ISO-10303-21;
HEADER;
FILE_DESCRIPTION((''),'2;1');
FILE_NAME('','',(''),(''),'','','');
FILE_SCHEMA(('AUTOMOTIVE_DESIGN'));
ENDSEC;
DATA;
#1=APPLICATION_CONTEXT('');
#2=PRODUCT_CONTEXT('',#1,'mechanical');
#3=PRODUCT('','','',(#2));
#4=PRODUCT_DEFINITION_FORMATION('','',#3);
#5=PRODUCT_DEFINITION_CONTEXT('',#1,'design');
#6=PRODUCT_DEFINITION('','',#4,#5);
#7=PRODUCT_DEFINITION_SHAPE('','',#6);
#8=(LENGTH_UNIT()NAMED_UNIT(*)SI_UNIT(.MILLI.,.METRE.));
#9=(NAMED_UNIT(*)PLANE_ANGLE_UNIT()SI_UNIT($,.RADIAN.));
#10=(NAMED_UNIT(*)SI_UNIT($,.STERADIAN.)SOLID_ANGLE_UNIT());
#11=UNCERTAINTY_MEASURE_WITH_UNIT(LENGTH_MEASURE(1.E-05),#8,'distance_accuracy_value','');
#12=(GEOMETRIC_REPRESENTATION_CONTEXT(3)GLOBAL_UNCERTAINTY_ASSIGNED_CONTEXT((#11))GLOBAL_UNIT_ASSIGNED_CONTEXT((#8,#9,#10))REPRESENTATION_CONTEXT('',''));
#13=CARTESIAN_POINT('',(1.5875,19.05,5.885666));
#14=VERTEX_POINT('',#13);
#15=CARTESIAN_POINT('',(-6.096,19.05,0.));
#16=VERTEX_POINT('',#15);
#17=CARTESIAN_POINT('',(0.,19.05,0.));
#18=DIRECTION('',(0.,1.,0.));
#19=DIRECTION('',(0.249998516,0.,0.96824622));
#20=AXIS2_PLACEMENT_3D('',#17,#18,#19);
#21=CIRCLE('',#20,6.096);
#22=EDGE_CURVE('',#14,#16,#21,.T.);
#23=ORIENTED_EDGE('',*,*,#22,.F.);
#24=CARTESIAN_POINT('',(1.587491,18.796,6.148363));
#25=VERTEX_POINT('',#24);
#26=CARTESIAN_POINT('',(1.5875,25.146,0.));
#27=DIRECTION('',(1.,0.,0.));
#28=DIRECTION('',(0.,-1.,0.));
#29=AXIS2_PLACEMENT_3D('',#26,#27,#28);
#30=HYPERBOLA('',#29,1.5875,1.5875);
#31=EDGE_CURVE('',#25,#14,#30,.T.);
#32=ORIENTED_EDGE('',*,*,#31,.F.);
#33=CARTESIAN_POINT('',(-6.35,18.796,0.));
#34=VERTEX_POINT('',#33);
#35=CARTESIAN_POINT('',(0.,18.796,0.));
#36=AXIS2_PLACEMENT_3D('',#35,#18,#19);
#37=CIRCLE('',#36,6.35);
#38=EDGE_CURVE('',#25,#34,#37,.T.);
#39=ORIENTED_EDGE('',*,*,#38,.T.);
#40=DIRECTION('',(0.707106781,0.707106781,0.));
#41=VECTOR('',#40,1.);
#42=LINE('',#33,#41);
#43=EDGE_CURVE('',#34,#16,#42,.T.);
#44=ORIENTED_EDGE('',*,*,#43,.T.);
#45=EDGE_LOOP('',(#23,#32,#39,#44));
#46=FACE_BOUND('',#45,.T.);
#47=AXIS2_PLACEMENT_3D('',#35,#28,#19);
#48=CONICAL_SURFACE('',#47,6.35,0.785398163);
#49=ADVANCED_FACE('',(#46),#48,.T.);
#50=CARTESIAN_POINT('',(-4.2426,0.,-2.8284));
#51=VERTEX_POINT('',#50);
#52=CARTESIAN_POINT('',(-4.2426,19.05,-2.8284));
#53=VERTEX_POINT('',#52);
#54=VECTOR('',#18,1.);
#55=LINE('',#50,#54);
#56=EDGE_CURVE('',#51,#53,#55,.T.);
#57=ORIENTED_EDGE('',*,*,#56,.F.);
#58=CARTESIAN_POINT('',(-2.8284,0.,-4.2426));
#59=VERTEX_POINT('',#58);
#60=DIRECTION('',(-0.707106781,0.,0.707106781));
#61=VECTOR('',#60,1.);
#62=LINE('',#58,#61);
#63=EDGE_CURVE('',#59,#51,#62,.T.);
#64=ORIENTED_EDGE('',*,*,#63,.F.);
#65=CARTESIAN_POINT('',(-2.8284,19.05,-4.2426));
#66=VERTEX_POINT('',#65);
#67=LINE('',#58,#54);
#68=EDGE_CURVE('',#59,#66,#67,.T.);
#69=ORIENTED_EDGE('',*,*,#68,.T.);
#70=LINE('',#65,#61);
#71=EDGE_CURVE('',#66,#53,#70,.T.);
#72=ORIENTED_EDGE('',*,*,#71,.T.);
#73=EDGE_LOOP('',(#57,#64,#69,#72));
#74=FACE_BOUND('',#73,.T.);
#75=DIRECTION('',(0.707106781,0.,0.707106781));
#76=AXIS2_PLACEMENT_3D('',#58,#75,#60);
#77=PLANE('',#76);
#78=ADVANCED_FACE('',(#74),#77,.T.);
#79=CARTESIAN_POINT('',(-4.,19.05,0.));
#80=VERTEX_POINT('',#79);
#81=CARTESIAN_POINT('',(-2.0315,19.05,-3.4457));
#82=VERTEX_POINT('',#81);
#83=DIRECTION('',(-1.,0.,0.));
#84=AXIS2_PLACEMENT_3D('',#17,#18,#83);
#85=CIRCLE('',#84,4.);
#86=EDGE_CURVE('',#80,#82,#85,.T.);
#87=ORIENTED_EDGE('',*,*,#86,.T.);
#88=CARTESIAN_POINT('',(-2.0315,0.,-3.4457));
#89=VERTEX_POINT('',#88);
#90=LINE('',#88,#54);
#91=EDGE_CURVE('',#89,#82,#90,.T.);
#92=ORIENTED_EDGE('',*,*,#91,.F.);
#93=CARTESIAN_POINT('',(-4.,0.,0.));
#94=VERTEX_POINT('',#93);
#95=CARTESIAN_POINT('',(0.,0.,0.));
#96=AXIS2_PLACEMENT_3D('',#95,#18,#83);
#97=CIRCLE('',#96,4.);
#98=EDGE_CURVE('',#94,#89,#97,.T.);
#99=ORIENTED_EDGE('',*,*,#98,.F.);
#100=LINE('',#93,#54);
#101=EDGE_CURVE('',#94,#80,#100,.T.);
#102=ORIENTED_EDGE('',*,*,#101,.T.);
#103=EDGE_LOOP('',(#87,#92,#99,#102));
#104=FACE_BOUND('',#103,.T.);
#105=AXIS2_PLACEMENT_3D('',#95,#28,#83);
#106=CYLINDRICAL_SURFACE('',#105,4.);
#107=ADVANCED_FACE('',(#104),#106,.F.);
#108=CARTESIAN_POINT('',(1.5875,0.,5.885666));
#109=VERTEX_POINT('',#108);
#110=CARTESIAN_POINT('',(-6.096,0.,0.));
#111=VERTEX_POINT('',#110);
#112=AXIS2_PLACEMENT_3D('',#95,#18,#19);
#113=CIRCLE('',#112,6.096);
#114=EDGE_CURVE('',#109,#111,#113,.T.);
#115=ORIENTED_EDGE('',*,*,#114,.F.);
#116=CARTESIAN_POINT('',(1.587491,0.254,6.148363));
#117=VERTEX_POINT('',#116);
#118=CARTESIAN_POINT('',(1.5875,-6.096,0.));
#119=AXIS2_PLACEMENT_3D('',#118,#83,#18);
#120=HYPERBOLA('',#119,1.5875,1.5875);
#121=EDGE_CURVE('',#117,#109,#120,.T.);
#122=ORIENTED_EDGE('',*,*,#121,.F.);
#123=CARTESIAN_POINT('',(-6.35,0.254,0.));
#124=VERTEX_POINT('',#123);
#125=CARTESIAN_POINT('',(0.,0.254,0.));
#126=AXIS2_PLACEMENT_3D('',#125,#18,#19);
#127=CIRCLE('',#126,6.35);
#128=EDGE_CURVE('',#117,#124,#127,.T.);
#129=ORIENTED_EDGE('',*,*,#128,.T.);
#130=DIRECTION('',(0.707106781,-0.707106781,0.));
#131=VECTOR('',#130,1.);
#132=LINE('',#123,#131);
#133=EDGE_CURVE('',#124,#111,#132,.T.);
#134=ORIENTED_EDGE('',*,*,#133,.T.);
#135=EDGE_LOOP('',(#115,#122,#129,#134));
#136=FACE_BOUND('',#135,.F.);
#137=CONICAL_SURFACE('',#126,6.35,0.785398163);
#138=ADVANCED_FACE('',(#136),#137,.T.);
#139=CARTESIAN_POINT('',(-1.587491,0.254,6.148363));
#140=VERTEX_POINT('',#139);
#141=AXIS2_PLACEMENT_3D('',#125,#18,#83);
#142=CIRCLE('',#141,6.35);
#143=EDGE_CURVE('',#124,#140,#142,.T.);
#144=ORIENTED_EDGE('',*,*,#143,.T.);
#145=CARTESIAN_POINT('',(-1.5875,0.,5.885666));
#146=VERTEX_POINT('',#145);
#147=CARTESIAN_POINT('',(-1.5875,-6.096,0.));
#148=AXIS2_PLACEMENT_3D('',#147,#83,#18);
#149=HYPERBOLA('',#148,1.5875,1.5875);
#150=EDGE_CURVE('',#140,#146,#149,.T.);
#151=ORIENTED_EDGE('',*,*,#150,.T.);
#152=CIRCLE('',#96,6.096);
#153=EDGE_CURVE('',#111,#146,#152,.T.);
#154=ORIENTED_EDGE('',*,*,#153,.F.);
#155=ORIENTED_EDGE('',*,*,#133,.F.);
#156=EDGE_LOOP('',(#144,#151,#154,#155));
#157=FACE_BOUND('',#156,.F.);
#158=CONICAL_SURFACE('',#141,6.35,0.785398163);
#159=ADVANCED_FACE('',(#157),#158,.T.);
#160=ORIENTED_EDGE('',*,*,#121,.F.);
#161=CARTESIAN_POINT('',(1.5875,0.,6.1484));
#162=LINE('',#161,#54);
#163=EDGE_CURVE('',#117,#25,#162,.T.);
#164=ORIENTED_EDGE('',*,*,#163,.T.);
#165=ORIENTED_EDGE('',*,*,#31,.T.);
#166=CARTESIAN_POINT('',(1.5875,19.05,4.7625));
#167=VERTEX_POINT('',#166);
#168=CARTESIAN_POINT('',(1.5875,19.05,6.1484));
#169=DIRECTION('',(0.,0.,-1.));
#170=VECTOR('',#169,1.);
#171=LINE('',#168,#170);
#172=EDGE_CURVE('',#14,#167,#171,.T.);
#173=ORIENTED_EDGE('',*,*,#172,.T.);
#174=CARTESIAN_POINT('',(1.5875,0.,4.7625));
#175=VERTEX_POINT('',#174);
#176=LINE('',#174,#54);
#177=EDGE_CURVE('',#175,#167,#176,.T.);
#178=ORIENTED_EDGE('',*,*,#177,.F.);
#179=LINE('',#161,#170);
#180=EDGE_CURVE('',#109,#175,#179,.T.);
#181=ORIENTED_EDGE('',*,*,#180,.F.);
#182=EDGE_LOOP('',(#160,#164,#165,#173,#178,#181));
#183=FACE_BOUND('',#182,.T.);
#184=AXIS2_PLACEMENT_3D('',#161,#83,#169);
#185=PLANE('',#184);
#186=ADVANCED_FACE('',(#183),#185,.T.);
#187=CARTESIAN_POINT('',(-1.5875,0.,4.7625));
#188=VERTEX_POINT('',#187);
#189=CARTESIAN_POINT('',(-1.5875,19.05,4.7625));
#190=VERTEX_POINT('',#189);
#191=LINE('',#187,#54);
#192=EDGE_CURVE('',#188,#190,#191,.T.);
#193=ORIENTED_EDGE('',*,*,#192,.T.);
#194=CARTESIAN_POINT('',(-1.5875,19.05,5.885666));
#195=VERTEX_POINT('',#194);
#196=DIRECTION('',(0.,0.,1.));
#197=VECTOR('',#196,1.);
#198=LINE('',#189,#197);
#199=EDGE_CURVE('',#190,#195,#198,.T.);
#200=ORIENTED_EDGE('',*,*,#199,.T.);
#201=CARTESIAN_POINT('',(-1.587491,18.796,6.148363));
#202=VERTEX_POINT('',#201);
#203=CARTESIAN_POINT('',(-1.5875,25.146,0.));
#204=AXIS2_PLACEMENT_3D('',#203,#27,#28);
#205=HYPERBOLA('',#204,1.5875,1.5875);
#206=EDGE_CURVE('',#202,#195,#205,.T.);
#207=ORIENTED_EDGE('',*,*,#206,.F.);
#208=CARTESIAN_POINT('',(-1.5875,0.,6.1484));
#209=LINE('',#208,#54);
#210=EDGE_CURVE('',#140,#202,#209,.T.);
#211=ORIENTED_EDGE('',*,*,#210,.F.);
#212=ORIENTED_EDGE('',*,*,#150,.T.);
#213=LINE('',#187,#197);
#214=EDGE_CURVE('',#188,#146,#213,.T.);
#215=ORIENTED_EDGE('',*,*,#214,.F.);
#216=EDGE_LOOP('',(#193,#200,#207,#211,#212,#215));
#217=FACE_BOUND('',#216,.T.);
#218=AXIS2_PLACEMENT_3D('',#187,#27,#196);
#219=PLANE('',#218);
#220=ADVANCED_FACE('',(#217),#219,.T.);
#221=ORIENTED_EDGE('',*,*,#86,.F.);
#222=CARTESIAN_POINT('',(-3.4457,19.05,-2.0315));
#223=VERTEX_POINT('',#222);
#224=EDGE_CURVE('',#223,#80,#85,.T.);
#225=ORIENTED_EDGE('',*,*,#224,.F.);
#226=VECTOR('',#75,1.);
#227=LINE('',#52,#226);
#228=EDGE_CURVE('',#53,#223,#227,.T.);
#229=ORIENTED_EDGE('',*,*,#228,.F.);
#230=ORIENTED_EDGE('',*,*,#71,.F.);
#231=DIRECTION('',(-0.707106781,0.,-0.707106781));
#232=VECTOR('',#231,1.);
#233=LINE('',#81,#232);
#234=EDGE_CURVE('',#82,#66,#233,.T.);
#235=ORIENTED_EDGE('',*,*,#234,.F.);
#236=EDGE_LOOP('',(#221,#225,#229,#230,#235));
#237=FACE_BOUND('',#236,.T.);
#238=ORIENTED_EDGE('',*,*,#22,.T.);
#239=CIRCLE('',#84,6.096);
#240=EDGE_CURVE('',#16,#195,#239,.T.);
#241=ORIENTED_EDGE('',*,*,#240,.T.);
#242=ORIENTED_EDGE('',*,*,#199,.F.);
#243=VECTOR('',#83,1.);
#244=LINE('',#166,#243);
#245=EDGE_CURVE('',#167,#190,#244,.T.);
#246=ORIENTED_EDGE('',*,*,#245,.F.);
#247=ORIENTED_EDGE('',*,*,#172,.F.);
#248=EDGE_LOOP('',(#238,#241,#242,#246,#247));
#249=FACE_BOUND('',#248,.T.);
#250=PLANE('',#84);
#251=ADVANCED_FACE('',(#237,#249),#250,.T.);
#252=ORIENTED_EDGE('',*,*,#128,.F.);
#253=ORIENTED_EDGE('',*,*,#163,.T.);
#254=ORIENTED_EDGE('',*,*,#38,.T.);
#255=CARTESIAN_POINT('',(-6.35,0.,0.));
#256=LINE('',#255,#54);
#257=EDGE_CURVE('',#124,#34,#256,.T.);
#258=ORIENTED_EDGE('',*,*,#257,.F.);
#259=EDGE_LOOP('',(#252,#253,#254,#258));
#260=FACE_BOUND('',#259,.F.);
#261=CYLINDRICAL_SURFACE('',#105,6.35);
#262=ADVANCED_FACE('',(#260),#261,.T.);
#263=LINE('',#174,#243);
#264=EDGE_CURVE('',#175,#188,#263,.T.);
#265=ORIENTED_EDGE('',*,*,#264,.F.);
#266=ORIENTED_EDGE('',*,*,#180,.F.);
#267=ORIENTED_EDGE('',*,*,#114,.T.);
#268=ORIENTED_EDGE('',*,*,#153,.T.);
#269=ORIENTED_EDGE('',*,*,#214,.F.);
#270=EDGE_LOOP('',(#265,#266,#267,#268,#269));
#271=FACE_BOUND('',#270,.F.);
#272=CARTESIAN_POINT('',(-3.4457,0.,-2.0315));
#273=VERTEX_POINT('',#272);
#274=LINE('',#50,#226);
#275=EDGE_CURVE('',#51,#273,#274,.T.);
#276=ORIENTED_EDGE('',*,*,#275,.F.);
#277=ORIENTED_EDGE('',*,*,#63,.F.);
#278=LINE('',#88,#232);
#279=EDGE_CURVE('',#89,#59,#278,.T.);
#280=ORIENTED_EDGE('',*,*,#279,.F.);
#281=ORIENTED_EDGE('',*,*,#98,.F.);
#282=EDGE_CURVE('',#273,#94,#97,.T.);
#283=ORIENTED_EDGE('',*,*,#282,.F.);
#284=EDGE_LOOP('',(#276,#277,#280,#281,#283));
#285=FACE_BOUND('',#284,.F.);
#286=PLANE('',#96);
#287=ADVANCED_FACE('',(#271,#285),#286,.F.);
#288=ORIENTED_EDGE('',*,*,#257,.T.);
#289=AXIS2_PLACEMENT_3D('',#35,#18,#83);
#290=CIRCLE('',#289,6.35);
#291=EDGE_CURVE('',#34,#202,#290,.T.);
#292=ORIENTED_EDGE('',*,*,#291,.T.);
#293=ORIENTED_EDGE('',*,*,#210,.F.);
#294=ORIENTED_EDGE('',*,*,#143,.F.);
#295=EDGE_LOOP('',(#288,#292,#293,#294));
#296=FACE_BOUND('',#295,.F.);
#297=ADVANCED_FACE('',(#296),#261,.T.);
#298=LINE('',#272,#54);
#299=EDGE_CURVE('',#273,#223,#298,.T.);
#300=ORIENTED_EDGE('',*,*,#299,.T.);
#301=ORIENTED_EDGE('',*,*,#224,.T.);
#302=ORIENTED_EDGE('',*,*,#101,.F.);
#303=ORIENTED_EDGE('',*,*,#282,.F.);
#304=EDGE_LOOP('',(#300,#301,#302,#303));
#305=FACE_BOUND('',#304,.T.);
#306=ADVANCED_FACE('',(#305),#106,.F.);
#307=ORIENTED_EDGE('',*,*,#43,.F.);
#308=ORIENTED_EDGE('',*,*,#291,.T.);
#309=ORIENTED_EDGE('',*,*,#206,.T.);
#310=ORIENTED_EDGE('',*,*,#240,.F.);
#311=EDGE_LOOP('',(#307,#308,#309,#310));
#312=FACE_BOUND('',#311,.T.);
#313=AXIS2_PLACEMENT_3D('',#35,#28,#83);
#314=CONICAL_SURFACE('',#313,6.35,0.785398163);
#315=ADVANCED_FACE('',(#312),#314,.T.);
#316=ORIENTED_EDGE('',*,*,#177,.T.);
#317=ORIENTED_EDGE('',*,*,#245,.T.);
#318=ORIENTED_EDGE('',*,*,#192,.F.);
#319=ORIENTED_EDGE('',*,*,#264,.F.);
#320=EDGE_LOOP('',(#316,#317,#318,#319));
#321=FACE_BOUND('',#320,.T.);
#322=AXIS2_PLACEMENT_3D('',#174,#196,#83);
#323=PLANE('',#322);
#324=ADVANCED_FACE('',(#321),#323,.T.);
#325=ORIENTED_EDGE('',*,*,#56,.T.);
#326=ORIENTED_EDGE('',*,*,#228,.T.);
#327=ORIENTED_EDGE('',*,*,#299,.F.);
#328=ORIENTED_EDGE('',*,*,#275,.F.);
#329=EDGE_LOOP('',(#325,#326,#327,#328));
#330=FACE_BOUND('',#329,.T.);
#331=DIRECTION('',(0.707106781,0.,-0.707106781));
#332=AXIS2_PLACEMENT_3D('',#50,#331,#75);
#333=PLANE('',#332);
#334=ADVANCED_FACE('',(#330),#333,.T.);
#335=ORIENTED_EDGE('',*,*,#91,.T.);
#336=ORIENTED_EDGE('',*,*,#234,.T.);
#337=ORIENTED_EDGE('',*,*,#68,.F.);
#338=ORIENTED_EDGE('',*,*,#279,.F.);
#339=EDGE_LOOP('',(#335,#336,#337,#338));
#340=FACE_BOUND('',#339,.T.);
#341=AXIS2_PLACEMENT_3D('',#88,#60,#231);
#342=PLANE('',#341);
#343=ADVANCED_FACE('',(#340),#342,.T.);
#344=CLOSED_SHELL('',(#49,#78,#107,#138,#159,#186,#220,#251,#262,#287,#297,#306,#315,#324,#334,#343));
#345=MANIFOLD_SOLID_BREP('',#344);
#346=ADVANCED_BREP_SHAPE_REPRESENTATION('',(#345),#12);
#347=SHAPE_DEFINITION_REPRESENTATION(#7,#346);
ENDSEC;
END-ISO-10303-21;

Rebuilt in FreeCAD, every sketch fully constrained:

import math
import FreeCAD as App
import Part
import Sketcher
Q = App.Units.Quantity


def edges_at(feature, points):
    """Names of the edges that pass closest to the given points."""
    edges = feature.Shape.Edges
    near = lambda p: min(range(len(edges)), key=lambda i: edges[i].distToShape(Part.Vertex(*p))[0])
    return sorted({f"Edge{near(p) + 1}" for p in points})

doc = App.newDocument("Part")
body = doc.addObject("PartDesign::Body", "Body")

sketch1 = body.newObject("Sketcher::SketchObject", "Sketch")
sketch1.AttachmentSupport = (doc.getObject("XZ_Plane"), [""])
sketch1.MapMode = "FlatFace"
sketch1.addGeometry([
    Part.ArcOfCircle(Part.Circle(App.Vector(0, 0, 0), App.Vector(0, 0, 1), 6.3), math.radians(104), math.radians(436)),
    Part.LineSegment(App.Vector(-1.6, 6.1, 0), App.Vector(-1.6, 4.8, 0)),
    Part.LineSegment(App.Vector(-1.6, 4.8, 0), App.Vector(1.6, 4.8, 0)),
    Part.LineSegment(App.Vector(1.6, 4.8, 0), App.Vector(1.6, 6.1, 0)),
    Part.ArcOfCircle(Part.Circle(App.Vector(0, 0, 0), App.Vector(0, 0, 1), 4), math.radians(-121), math.radians(211)),
    Part.LineSegment(App.Vector(-3.4, -2, 0), App.Vector(-4.2, -2.8, 0)),
    Part.LineSegment(App.Vector(-4.2, -2.8, 0), App.Vector(-2.8, -4.2, 0)),
    Part.LineSegment(App.Vector(-2.8, -4.2, 0), App.Vector(-2, -3.4, 0)),
], False)
sketch1.addConstraint([
    Sketcher.Constraint("Coincident", 0, 1, 1, 1),
    Sketcher.Constraint("Coincident", 1, 2, 2, 1),
    Sketcher.Constraint("Coincident", 2, 2, 3, 1),
    Sketcher.Constraint("Coincident", 3, 2, 0, 2),
    Sketcher.Constraint("Coincident", 4, 2, 5, 1),
    Sketcher.Constraint("Coincident", 5, 2, 6, 1),
    Sketcher.Constraint("Coincident", 6, 2, 7, 1),
    Sketcher.Constraint("Coincident", 7, 2, 4, 1),
    Sketcher.Constraint("Vertical", 1),
    Sketcher.Constraint("Horizontal", 2),
    Sketcher.Constraint("Vertical", 3),
    Sketcher.Constraint("Coincident", 0, 3, -1, 1),
    Sketcher.Constraint("Coincident", 4, 3, -1, 1),
    Sketcher.Constraint("Perpendicular", 5, 6),
    Sketcher.Constraint("Perpendicular", 6, 7),
    Sketcher.Constraint("Horizontal", 0, 1, 3, 2),
    Sketcher.Constraint("Equal", 5, 7),
    Sketcher.Constraint("Radius", 0, Q("0.25 in")),
    Sketcher.Constraint("Angle", 6, Q("-45 deg")),
    Sketcher.Constraint("DistanceX", 2, 1, 2, 2, Q("0.125 in")),
    Sketcher.Constraint("Radius", 4, 4.0),
    Sketcher.Constraint("Distance", 6, 2.0),
    Sketcher.Constraint("DistanceY", -1, 1, 1, 2, Q("0.1875 in")),
    Sketcher.Constraint("DistanceX", 4, 2, 6, 2, Q("0.0243 in")),
])
pad1 = body.newObject("PartDesign::Pad", "Pad")
pad1.Profile = sketch1
pad1.Length = Q("0.75 in")
pad1.Reversed = True
doc.recompute()

chamfer = body.newObject("PartDesign::Chamfer", "Chamfer")
chamfer.Base = (pad1, edges_at(pad1, [(0, 19.05, -6.35), (0, 0, -6.35)]))
chamfer.Size = Q("0.01 in")

doc.recompute()
